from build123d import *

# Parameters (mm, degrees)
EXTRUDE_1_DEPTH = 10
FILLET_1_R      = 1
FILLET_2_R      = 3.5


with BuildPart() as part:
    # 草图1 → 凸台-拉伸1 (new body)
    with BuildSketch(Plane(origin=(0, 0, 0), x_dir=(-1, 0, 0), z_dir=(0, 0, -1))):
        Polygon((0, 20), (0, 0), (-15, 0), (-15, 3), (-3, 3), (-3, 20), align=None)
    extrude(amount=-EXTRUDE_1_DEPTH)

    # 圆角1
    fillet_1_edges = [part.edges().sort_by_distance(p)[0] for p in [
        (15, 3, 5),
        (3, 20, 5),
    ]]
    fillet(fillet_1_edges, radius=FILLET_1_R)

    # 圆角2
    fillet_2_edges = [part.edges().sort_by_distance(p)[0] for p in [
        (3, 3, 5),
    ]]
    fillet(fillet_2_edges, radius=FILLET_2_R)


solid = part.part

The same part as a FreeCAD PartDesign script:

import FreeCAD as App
import Part
import Sketcher
from FreeCAD import Vector
Q = App.Units.Quantity


def edges_at(feature, points):
    """Names of the edges that pass closest to the given points."""
    edges = feature.Shape.Edges
    near = lambda p: min(range(len(edges)), key=lambda i: edges[i].distToShape(Part.Vertex(*p))[0])
    return sorted({f"Edge{near(p) + 1}" for p in points})


def add_polygon(sketch, points):
    """Adds a closed chain of lines whose ends are joined by coincident constraints."""
    first, n = sketch.GeometryCount, len(points)
    for a, b in zip(points, points[1:] + points[:1]):
        sketch.addGeometry(Part.LineSegment(App.Vector(*a, 0), App.Vector(*b, 0)), False)
    for i in range(n):
        sketch.addConstraint(Sketcher.Constraint("Coincident", first + i, 2, first + (i + 1) % n, 1))

doc = App.newDocument("Part")
body = doc.addObject("PartDesign::Body", "Body")

# Sketch on XY plane
sketch1 = body.newObject("Sketcher::SketchObject", "Sketch")
sketch1.AttachmentSupport = (doc.getObject("XY_Plane"), [""])
sketch1.MapMode = "FlatFace"
add_polygon(sketch1, [(0, 0), (0, 20), (3, 20), (3, 3), (15, 3), (15, 0)])  # lines 0-5
sketch1.addConstraint(Sketcher.Constraint("Vertical", 0))
sketch1.addConstraint(Sketcher.Constraint("Horizontal", 1))
sketch1.addConstraint(Sketcher.Constraint("Vertical", 2))
sketch1.addConstraint(Sketcher.Constraint("Horizontal", 3))
sketch1.addConstraint(Sketcher.Constraint("Vertical", 4))
sketch1.addConstraint(Sketcher.Constraint("Horizontal", 5))
sketch1.addConstraint(Sketcher.Constraint("Coincident", 5, 2, -1, 1))
sketch1.addConstraint(Sketcher.Constraint("Equal", 1, 4))
sketch1.addConstraint(Sketcher.Constraint("DistanceX", 1, 1, 1, 2, Q("3 mm")))
sketch1.addConstraint(Sketcher.Constraint("DistanceX", 3, 1, 3, 2, Q("12 mm")))
sketch1.addConstraint(Sketcher.Constraint("DistanceY", 0, 1, 0, 2, Q("20 mm")))
pad1 = body.newObject("PartDesign::Pad", "Pad")
pad1.Profile = sketch1
pad1.Length = 10
doc.recompute()

fillet = body.newObject("PartDesign::Fillet", "Fillet")
fillet.Base = (pad1, edges_at(pad1, [(15, 3, 5), (3, 20, 5)]))
fillet.Radius = 1
doc.recompute()

fillet2 = body.newObject("PartDesign::Fillet", "Fillet001")
fillet2.Base = (fillet, edges_at(fillet, [(3, 3, 5)]))
fillet2.Radius = 3.5

doc.recompute()
